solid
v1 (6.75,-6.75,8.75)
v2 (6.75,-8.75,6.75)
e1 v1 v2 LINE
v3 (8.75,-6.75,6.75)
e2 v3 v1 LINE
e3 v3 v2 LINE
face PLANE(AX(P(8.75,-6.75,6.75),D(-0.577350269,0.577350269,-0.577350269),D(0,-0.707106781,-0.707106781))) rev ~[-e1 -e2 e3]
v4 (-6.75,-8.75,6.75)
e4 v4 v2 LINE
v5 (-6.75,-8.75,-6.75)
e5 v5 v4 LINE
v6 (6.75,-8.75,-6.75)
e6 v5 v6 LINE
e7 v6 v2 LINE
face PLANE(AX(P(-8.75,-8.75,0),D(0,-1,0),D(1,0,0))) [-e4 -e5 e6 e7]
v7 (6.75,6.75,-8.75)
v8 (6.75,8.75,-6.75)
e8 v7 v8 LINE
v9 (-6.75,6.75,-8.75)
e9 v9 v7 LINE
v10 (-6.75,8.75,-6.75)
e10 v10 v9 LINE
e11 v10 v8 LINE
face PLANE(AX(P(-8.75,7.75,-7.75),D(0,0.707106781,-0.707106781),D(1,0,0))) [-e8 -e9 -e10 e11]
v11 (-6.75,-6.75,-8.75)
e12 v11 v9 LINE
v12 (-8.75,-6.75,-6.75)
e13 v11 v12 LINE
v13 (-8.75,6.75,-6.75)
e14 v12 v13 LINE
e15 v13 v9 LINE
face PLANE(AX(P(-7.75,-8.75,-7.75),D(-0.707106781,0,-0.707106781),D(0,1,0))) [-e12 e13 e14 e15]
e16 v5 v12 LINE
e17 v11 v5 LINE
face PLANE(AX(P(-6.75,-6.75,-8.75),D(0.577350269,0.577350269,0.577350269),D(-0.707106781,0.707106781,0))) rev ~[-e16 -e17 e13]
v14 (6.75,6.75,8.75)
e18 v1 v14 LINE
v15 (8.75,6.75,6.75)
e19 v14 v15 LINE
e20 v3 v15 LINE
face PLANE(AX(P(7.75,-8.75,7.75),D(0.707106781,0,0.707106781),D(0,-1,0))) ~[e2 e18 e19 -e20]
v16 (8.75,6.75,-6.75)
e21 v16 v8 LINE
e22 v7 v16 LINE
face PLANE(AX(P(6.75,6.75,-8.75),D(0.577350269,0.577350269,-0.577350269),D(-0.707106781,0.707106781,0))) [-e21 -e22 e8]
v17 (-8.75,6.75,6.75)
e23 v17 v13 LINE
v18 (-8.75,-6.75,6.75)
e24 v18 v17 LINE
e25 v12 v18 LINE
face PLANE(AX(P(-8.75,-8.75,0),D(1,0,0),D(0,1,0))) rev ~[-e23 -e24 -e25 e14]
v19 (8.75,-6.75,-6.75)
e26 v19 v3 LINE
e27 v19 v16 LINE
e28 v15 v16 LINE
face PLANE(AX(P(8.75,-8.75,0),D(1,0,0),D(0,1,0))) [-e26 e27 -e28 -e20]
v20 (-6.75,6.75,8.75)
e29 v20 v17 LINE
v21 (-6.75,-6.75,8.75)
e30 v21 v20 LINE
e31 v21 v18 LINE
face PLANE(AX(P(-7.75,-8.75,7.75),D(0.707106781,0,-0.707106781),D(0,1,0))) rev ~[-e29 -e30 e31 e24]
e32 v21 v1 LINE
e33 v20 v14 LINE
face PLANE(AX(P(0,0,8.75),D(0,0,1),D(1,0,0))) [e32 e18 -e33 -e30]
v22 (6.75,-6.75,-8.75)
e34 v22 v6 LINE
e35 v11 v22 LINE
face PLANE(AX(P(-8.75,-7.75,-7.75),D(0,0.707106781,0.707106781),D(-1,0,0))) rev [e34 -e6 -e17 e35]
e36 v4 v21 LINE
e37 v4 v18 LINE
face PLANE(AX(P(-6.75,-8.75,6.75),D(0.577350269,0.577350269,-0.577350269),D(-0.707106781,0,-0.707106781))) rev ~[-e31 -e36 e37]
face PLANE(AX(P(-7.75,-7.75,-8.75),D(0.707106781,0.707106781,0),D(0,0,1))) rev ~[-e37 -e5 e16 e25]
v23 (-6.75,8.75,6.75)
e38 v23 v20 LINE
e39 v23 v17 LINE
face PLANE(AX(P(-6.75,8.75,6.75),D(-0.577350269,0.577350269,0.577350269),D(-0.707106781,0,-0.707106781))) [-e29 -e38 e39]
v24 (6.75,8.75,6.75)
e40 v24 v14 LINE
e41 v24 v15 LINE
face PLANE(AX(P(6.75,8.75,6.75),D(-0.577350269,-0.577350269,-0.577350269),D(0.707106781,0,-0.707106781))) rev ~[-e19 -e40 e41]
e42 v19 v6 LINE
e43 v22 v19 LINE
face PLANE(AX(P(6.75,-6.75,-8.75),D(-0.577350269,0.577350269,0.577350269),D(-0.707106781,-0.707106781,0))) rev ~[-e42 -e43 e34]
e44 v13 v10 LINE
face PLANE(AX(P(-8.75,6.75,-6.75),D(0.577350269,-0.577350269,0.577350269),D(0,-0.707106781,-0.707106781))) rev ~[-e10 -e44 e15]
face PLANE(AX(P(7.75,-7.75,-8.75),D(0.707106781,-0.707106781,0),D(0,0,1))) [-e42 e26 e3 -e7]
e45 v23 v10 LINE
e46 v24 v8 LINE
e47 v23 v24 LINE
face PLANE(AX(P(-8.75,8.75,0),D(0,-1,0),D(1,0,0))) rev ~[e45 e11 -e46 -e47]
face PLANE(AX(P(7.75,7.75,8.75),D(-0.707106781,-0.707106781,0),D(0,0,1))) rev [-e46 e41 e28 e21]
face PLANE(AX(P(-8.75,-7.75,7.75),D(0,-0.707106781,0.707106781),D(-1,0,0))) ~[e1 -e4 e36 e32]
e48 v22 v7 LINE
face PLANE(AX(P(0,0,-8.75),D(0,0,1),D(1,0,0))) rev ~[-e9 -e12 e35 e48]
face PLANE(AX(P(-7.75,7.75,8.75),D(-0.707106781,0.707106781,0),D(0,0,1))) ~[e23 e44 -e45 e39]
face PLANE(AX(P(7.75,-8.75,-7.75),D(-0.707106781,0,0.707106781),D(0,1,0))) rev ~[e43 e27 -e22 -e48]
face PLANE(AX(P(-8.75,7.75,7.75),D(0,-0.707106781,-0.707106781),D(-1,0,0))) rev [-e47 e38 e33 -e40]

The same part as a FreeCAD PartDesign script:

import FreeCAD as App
import Part
import Sketcher
from FreeCAD import Vector


def add_polygon(sketch, points):
    """Adds a closed chain of lines whose ends are joined by coincident constraints."""
    first, n = sketch.GeometryCount, len(points)
    for a, b in zip(points, points[1:] + points[:1]):
        sketch.addGeometry(Part.LineSegment(App.Vector(*a, 0), App.Vector(*b, 0)), False)
    for i in range(n):
        sketch.addConstraint(Sketcher.Constraint("Coincident", first + i, 2, first + (i + 1) % n, 1))

doc = App.newDocument("Part")
body = doc.addObject("PartDesign::Body", "Body")

# Sketch on XY plane
sketch1 = body.newObject("Sketcher::SketchObject", "Sketch")
sketch1.AttachmentSupport = (doc.getObject("XY_Plane"), [""])
sketch1.MapMode = "FlatFace"
add_polygon(sketch1, [(-8.75, 8.75), (-8.75, -8.75), (8.75, -8.75), (8.75, 8.75)])  # lines 0-3
sketch1.addConstraint([
    Sketcher.Constraint("Vertical", 0),
    Sketcher.Constraint("Horizontal", 1),
    Sketcher.Constraint("Vertical", 2),
    Sketcher.Constraint("Horizontal", 3),
    Sketcher.Constraint("Symmetric", 0, 2, 2, 2, -1, 1),
    Sketcher.Constraint("Equal", 3, 0),
    Sketcher.Constraint("DistanceX", 1, 1, 1, 2, 17.5),
])
pad1 = body.newObject("PartDesign::Pad", "Pad")
pad1.Profile = sketch1
pad1.Length = 17.5
pad1.Midplane = True
doc.recompute()

chamfer = body.newObject("PartDesign::Chamfer", "Chamfer")
chamfer.Base = (pad1, ["Edge1"])
chamfer.UseAllEdges = True
chamfer.Size = 2

doc.recompute()
